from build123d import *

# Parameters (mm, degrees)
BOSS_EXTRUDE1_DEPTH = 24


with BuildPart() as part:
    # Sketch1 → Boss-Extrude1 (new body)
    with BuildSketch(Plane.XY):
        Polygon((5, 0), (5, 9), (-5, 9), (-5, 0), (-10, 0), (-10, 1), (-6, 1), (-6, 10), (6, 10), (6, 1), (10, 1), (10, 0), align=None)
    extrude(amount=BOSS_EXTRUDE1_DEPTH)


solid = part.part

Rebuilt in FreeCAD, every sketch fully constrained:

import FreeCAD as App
import Part
import Sketcher
from FreeCAD import Vector

doc = App.newDocument("Part")
body = doc.addObject("PartDesign::Body", "Body")

# Sketch on XY plane
sketch1 = body.newObject("Sketcher::SketchObject", "Sketch")
sketch1.AttachmentSupport = (doc.getObject("XY_Plane"), [""])
sketch1.MapMode = "FlatFace"
sketch1.addGeometry(Part.LineSegment(Vector(5, 9, 0), Vector(5, 0, 0)), False)
sketch1.addGeometry(Part.LineSegment(Vector(5, 0, 0), Vector(10, 0, 0)), False)
sketch1.addGeometry(Part.LineSegment(Vector(10, 0, 0), Vector(10, 1, 0)), False)
sketch1.addGeometry(Part.LineSegment(Vector(10, 1, 0), Vector(6, 1, 0)), False)
sketch1.addGeometry(Part.LineSegment(Vector(6, 1, 0), Vector(6, 10, 0)), False)
sketch1.addGeometry(Part.LineSegment(Vector(6, 10, 0), Vector(-6, 10, 0)), False)
sketch1.addGeometry(Part.LineSegment(Vector(-6, 10, 0), Vector(-6, 1, 0)), False)
sketch1.addGeometry(Part.LineSegment(Vector(-6, 1, 0), Vector(-10, 1, 0)), False)
sketch1.addGeometry(Part.LineSegment(Vector(-10, 1, 0), Vector(-10, 0, 0)), False)
sketch1.addGeometry(Part.LineSegment(Vector(-10, 0, 0), Vector(-5, 0, 0)), False)
sketch1.addGeometry(Part.LineSegment(Vector(-5, 0, 0), Vector(-5, 9, 0)), False)
sketch1.addGeometry(Part.LineSegment(Vector(-5, 9, 0), Vector(5, 9, 0)), False)
sketch1.addConstraint(Sketcher.Constraint("Coincident", 0, 2, 1, 1))
sketch1.addConstraint(Sketcher.Constraint("Coincident", 1, 2, 2, 1))
sketch1.addConstraint(Sketcher.Constraint("Coincident", 2, 2, 3, 1))
sketch1.addConstraint(Sketcher.Constraint("Coincident", 3, 2, 4, 1))
sketch1.addConstraint(Sketcher.Constraint("Coincident", 4, 2, 5, 1))
sketch1.addConstraint(Sketcher.Constraint("Coincident", 5, 2, 6, 1))
sketch1.addConstraint(Sketcher.Constraint("Coincident", 6, 2, 7, 1))
sketch1.addConstraint(Sketcher.Constraint("Coincident", 7, 2, 8, 1))
sketch1.addConstraint(Sketcher.Constraint("Coincident", 8, 2, 9, 1))
sketch1.addConstraint(Sketcher.Constraint("Coincident", 9, 2, 10, 1))
sketch1.addConstraint(Sketcher.Constraint("Coincident", 10, 2, 11, 1))
sketch1.addConstraint(Sketcher.Constraint("Coincident", 11, 2, 0, 1))
sketch1.addConstraint(Sketcher.Constraint("Vertical", 0))
sketch1.addConstraint(Sketcher.Constraint("Horizontal", 1))
sketch1.addConstraint(Sketcher.Constraint("Vertical", 2))
sketch1.addConstraint(Sketcher.Constraint("Horizontal", 3))
sketch1.addConstraint(Sketcher.Constraint("Vertical", 4))
sketch1.addConstraint(Sketcher.Constraint("Horizontal", 5))
sketch1.addConstraint(Sketcher.Constraint("Vertical", 6))
sketch1.addConstraint(Sketcher.Constraint("Horizontal", 7))
sketch1.addConstraint(Sketcher.Constraint("Vertical", 8))
sketch1.addConstraint(Sketcher.Constraint("Horizontal", 9))
sketch1.addConstraint(Sketcher.Constraint("Vertical", 10))
sketch1.addConstraint(Sketcher.Constraint("Horizontal", 11))
sketch1.addConstraint(Sketcher.Constraint("Symmetric", 1, 2, 8, 2, -1, 1))
sketch1.addConstraint(Sketcher.Constraint("Symmetric", 3, 2, 6, 2, -2))
sketch1.addConstraint(Sketcher.Constraint("Symmetric", 0, 2, 9, 2, -2))
sketch1.addConstraint(Sketcher.Constraint("Equal", 0, 4))
sketch1.addConstraint(Sketcher.Constraint("DistanceX", 1, 1, 1, 2, 5.0))
sketch1.addConstraint(Sketcher.Constraint("DistanceX", 3, 2, 3, 1, 4.0))
sketch1.addConstraint(Sketcher.Constraint("DistanceX", 5, 2, 5, 1, 12.0))
sketch1.addConstraint(Sketcher.Constraint("DistanceY", 0, 2, 0, 1, 9.0))
sketch1.addConstraint(Sketcher.Constraint("DistanceY", 2, 1, 2, 2, 1.0))
pad1 = body.newObject("PartDesign::Pad", "Pad")
pad1.Profile = sketch1
pad1.Length = 24

doc.recompute()
